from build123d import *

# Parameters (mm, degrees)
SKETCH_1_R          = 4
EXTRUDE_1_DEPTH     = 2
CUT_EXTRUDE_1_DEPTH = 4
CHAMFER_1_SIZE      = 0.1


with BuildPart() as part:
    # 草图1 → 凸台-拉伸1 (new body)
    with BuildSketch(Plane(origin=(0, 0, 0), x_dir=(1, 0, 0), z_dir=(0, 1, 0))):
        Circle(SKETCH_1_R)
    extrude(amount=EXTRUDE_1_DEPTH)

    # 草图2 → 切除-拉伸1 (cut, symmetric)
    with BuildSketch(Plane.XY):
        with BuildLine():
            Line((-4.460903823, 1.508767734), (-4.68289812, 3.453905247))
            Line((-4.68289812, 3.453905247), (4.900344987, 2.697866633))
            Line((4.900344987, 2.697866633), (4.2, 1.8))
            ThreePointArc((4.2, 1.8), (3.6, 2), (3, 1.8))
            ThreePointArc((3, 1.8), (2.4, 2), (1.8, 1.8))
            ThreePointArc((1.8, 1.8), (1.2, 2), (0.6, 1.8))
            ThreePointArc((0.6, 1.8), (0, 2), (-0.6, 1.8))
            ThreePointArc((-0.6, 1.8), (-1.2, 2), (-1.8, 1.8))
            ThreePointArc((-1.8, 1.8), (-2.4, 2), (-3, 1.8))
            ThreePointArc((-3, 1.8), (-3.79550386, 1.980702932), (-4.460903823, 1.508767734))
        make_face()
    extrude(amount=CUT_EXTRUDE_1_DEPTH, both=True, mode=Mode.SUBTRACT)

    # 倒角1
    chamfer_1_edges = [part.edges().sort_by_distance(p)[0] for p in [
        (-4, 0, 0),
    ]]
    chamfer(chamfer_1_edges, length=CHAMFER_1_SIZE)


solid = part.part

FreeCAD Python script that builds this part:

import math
import FreeCAD as App
import Part
import Sketcher


def edges_at(feature, points):
    """Names of the edges that pass closest to the given points."""
    edges = feature.Shape.Edges
    near = lambda p: min(range(len(edges)), key=lambda i: edges[i].distToShape(Part.Vertex(*p))[0])
    return sorted({f"Edge{near(p) + 1}" for p in points})

doc = App.newDocument("Part")
body = doc.addObject("PartDesign::Body", "Body")

sketch1 = body.newObject("Sketcher::SketchObject", "Sketch")
sketch1.AttachmentSupport = (doc.getObject("XZ_Plane"), [""])
sketch1.MapMode = "FlatFace"
sketch1.addGeometry(Part.Circle(App.Vector(0, 0, 0), App.Vector(0, 0, 1), 4), False)
sketch1.addConstraint(Sketcher.Constraint("Coincident", 0, 3, -1, 1))
sketch1.addConstraint(Sketcher.Constraint("Diameter", 0, 8.0))
pad1 = body.newObject("PartDesign::Pad", "Pad")
pad1.Profile = sketch1
pad1.Length = 2
pad1.Reversed = True

sketch2 = body.newObject("Sketcher::SketchObject", "Sketch001")
sketch2.AttachmentSupport = (doc.getObject("XY_Plane"), [""])
sketch2.MapMode = "FlatFace"
sketch2.addGeometry(Part.LineSegment(App.Vector(-4.7, 3.5, 0), App.Vector(-4.5, 1.5, 0)), False)
sketch2.addGeometry(Part.ArcOfCircle(Part.Circle(App.Vector(-3.6, 1, 0), App.Vector(0, 0, 1), 1), math.radians(53), math.radians(149)), False)
sketch2.addGeometry(Part.ArcOfCircle(Part.Circle(App.Vector(-2.4, 1, 0), App.Vector(0, 0, 1), 1), math.radians(53), math.radians(127)), False)
sketch2.addGeometry(Part.ArcOfCircle(Part.Circle(App.Vector(-1.2, 1, 0), App.Vector(0, 0, 1), 1), math.radians(53), math.radians(127)), False)
sketch2.addGeometry(Part.ArcOfCircle(Part.Circle(App.Vector(0, 1, 0), App.Vector(0, 0, 1), 1), math.radians(53), math.radians(127)), False)
sketch2.addGeometry(Part.ArcOfCircle(Part.Circle(App.Vector(1.2, 1, 0), App.Vector(0, 0, 1), 1), math.radians(53), math.radians(127)), False)
sketch2.addGeometry(Part.ArcOfCircle(Part.Circle(App.Vector(2.4, 1, 0), App.Vector(0, 0, 1), 1), math.radians(53), math.radians(127)), False)
sketch2.addGeometry(Part.ArcOfCircle(Part.Circle(App.Vector(3.6, 1, 0), App.Vector(0, 0, 1), 1), math.radians(53), math.radians(127)), False)
sketch2.addGeometry(Part.LineSegment(App.Vector(4.2, 1.8, 0), App.Vector(4.9, 2.7, 0)), False)
sketch2.addGeometry(Part.LineSegment(App.Vector(4.9, 2.7, 0), App.Vector(-4.7, 3.5, 0)), False)
sketch2.addConstraint(Sketcher.Constraint("Coincident", 0, 2, 1, 2))
sketch2.addConstraint(Sketcher.Constraint("Coincident", 1, 1, 2, 2))
sketch2.addConstraint(Sketcher.Constraint("Coincident", 2, 1, 3, 2))
sketch2.addConstraint(Sketcher.Constraint("Coincident", 3, 1, 4, 2))
sketch2.addConstraint(Sketcher.Constraint("Coincident", 4, 1, 5, 2))
sketch2.addConstraint(Sketcher.Constraint("Coincident", 5, 1, 6, 2))
sketch2.addConstraint(Sketcher.Constraint("Coincident", 6, 1, 7, 2))
sketch2.addConstraint(Sketcher.Constraint("Coincident", 7, 1, 8, 1))
sketch2.addConstraint(Sketcher.Constraint("Coincident", 8, 2, 9, 1))
sketch2.addConstraint(Sketcher.Constraint("Coincident", 9, 2, 0, 1))
sketch2.addConstraint(Sketcher.Constraint("Equal", 1, 2))
sketch2.addConstraint(Sketcher.Constraint("Equal", 2, 3))
sketch2.addConstraint(Sketcher.Constraint("Equal", 3, 4))
sketch2.addConstraint(Sketcher.Constraint("Equal", 4, 5))
sketch2.addConstraint(Sketcher.Constraint("Equal", 5, 6))
sketch2.addConstraint(Sketcher.Constraint("Equal", 6, 7))
sketch2.addConstraint(Sketcher.Constraint("Symmetric", 3, 3, 5, 3, -2))
sketch2.addConstraint(Sketcher.Constraint("Symmetric", 2, 3, 6, 3, -2))
sketch2.addConstraint(Sketcher.Constraint("Symmetric", 1, 3, 7, 3, -2))
sketch2.addConstraint(Sketcher.Constraint("PointOnObject", 4, 3, -2))
sketch2.addConstraint(Sketcher.Constraint("Horizontal", 1, 3, 2, 3))
sketch2.addConstraint(Sketcher.Constraint("Horizontal", 2, 3, 3, 3))
sketch2.addConstraint(Sketcher.Constraint("Horizontal", 3, 3, 4, 3))
sketch2.addConstraint(Sketcher.Constraint("Horizontal", 1, 1, 2, 1))
sketch2.addConstraint(Sketcher.Constraint("Horizontal", 2, 1, 3, 1))
sketch2.addConstraint(Sketcher.Constraint("Horizontal", 6, 1, 7, 1))
sketch2.addConstraint(Sketcher.Constraint("Radius", 1, 1.0))
sketch2.addConstraint(Sketcher.Constraint("DistanceY", -1, 1, 1, 3, 1.0))
sketch2.addConstraint(Sketcher.Constraint("DistanceX", 1, 1, -1, 1, 3.0))
sketch2.addConstraint(Sketcher.Constraint("DistanceX", 9, 2, -1, 1, 4.682898))
sketch2.addConstraint(Sketcher.Constraint("Distance", 9, 9.613019))
sketch2.addConstraint(Sketcher.Constraint("Distance", 0, 1.957764))
sketch2.addConstraint(Sketcher.Constraint("Distance", 8, 1.138704))
sketch2.addConstraint(Sketcher.Constraint("DistanceX", 0, 2, -1, 1, 4.460904))
pocket1 = body.newObject("PartDesign::Pocket", "Pocket")
pocket1.Profile = sketch2
pocket1.Length = 8
pocket1.Midplane = True
doc.recompute()

chamfer = body.newObject("PartDesign::Chamfer", "Chamfer")
chamfer.Base = (pocket1, edges_at(pocket1, [(-4, 0, 0)]))
chamfer.Size = 0.1

doc.recompute()
